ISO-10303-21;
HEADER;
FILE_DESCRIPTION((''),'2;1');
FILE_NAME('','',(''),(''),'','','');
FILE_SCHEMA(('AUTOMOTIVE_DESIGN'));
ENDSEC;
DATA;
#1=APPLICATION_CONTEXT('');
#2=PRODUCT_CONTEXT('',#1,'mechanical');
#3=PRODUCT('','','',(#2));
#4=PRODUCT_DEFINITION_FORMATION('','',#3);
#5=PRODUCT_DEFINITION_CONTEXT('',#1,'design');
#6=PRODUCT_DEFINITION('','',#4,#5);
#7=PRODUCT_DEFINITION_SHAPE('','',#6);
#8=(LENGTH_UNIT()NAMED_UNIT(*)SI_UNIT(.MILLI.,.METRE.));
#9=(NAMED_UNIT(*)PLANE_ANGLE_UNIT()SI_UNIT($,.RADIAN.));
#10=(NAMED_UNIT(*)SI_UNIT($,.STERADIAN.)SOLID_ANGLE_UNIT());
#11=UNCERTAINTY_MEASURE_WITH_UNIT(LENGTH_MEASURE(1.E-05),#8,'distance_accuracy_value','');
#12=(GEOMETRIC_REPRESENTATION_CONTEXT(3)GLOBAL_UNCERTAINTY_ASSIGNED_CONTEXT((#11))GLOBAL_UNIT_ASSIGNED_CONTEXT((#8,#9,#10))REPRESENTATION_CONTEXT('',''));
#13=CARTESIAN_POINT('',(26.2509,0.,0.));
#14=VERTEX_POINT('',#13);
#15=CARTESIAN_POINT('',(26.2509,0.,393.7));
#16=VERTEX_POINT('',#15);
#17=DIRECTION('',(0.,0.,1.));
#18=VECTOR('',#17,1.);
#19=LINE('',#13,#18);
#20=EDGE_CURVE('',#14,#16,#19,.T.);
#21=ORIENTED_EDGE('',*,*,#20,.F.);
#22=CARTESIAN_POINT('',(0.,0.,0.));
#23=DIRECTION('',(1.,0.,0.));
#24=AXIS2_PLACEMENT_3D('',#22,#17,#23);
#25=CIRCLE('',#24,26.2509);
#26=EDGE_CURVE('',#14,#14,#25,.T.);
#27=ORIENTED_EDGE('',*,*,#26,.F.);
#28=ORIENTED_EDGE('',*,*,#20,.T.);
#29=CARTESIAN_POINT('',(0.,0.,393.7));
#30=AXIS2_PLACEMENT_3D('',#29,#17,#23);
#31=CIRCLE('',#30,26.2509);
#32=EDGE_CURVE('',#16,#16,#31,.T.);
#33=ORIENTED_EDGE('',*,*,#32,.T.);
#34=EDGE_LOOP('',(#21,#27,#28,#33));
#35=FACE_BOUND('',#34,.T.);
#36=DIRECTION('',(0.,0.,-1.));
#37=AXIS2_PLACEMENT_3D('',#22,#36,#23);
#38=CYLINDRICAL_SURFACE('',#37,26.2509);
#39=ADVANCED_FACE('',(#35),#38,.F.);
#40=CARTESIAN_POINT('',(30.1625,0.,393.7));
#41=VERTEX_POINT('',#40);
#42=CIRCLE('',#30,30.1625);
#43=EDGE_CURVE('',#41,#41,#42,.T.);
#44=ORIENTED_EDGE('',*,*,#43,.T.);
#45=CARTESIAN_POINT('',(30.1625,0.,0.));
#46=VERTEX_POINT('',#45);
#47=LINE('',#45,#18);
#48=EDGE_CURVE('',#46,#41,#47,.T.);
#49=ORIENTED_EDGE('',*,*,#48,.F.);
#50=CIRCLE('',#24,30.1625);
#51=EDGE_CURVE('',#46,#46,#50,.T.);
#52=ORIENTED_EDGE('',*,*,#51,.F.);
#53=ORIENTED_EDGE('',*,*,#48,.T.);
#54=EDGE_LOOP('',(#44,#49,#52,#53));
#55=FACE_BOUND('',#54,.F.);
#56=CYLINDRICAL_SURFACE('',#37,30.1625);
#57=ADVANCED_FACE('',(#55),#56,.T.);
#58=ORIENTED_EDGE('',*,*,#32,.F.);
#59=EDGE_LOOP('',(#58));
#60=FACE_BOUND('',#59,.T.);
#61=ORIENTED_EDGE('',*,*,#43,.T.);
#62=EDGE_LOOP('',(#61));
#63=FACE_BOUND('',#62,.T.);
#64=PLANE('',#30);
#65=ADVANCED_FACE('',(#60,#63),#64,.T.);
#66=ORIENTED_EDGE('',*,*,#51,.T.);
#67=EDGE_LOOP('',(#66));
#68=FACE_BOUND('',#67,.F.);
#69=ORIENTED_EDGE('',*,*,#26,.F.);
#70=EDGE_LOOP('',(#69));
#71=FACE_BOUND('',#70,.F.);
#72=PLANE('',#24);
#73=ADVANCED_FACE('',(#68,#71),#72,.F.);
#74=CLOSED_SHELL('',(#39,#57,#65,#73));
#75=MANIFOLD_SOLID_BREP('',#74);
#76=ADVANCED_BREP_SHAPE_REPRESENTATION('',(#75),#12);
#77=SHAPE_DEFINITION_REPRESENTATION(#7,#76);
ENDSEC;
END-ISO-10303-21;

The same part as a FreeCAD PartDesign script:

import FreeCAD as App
import Part
import Sketcher
from FreeCAD import Vector
Q = App.Units.Quantity

doc = App.newDocument("Part")
body = doc.addObject("PartDesign::Body", "Body")

# Sketch on XY plane
sketch1 = doc.addObject("Sketcher::SketchObject", "Sketch")
body.addObject(sketch1)
sketch1.AttachmentSupport = (doc.XY_Plane, [""])
sketch1.MapMode = "FlatFace"
sketch1.addGeometry(Part.Circle(Vector(0, 0, 0), Vector(0, 0, 1), 30.1625), False)
sketch1.addGeometry(Part.Circle(Vector(0, 0, 0), Vector(0, 0, 1), 26.2509), False)
sketch1.addConstraint(Sketcher.Constraint("Coincident", 0, 3, -1, 1))
sketch1.addConstraint(Sketcher.Constraint("Coincident", 1, 3, -1, 1))
sketch1.addConstraint(Sketcher.Constraint("Diameter", 0, Q("2.375 in")))
sketch1.addConstraint(Sketcher.Constraint("Diameter", 1, Q("2.067 in")))
pad1 = doc.addObject("PartDesign::Pad", "Pad")
body.addObject(pad1)
pad1.Profile = sketch1
pad1.Length = Q("15.5 in")

doc.recompute()
